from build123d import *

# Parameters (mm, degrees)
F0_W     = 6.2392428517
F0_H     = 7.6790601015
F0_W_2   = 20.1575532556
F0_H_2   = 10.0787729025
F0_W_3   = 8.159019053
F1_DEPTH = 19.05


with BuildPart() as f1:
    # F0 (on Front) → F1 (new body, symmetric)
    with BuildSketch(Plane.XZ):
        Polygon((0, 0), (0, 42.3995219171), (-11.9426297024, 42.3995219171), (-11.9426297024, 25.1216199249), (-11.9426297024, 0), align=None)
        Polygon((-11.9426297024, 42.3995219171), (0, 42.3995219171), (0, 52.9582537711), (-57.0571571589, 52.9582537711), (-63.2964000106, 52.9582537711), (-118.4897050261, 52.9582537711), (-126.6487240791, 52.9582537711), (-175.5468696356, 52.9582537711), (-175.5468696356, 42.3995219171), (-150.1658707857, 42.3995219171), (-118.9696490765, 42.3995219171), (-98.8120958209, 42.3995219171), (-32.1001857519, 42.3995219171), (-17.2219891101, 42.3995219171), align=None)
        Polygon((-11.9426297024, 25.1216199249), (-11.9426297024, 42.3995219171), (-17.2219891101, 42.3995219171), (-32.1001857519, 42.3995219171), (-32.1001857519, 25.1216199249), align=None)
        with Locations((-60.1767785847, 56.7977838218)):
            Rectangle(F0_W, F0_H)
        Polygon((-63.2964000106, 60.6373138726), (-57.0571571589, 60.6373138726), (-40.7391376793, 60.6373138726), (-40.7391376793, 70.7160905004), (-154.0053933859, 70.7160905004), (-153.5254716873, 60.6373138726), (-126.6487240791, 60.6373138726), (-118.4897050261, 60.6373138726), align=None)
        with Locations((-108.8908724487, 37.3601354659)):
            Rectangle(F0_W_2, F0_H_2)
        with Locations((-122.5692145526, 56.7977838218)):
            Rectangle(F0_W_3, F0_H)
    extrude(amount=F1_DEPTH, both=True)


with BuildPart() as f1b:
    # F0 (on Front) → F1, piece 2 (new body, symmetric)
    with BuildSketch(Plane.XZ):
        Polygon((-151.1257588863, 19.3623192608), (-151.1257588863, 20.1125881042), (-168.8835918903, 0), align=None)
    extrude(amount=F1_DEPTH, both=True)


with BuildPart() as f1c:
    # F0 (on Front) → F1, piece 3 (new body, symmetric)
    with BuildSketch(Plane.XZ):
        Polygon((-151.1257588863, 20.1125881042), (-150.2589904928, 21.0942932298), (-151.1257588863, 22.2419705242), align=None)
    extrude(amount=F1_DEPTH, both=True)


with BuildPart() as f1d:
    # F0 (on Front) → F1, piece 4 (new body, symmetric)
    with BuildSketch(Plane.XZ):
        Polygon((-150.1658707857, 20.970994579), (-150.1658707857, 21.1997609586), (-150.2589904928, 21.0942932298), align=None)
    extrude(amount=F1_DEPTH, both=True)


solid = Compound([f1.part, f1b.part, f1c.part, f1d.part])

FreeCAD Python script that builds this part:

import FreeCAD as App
import Part
import Sketcher

V = App.Vector
Q = App.Units.Quantity

doc = App.newDocument("Part")
body = doc.addObject("PartDesign::Body", "Body")

sketch1 = body.newObject("Sketcher::SketchObject", "Sketch")
sketch1.AttachmentSupport = (doc.getObject("XZ_Plane"), [""])
sketch1.MapMode = "FlatFace"
sketch1.addGeometry([
    Part.LineSegment(V(0, 0, 0), V(0, 53, 0)),
    Part.LineSegment(V(0, 53, 0), V(-57, 53, 0)),
    Part.LineSegment(V(-57, 53, 0), V(-57, 61, 0)),
    Part.LineSegment(V(-57, 61, 0), V(-41, 61, 0)),
    Part.LineSegment(V(-41, 61, 0), V(-41, 71, 0)),
    Part.LineSegment(V(-41, 71, 0), V(-154, 71, 0)),
    Part.LineSegment(V(-154, 71, 0), V(-154, 61, 0)),
    Part.LineSegment(V(-154, 61, 0), V(-127, 61, 0)),
    Part.LineSegment(V(-127, 61, 0), V(-127, 53, 0)),
    Part.LineSegment(V(-127, 53, 0), V(-176, 53, 0)),
    Part.LineSegment(V(-176, 53, 0), V(-176, 42, 0)),
    Part.LineSegment(V(-176, 42, 0), V(-119, 42, 0)),
    Part.LineSegment(V(-119, 42, 0), V(-119, 32, 0)),
    Part.LineSegment(V(-119, 32, 0), V(-99, 32, 0)),
    Part.LineSegment(V(-99, 32, 0), V(-99, 42, 0)),
    Part.LineSegment(V(-99, 42, 0), V(-32, 42, 0)),
    Part.LineSegment(V(-32, 42, 0), V(-32, 25, 0)),
    Part.LineSegment(V(-32, 25, 0), V(-12, 25, 0)),
    Part.LineSegment(V(-12, 25, 0), V(-12, 0, 0)),
    Part.LineSegment(V(-12, 0, 0), V(0, 0, 0)),
    Part.LineSegment(V(-118, 61, 0), V(-63, 61, 0)),
    Part.LineSegment(V(-63, 61, 0), V(-63, 53, 0)),
    Part.LineSegment(V(-63, 53, 0), V(-118, 53, 0)),
    Part.LineSegment(V(-118, 53, 0), V(-118, 61, 0)),
], False)
sketch1.addConstraint([
    Sketcher.Constraint("Coincident", 0, 2, 1, 1),
    Sketcher.Constraint("Coincident", 1, 2, 2, 1),
    Sketcher.Constraint("Coincident", 2, 2, 3, 1),
    Sketcher.Constraint("Coincident", 3, 2, 4, 1),
    Sketcher.Constraint("Coincident", 4, 2, 5, 1),
    Sketcher.Constraint("Coincident", 5, 2, 6, 1),
    Sketcher.Constraint("Coincident", 6, 2, 7, 1),
    Sketcher.Constraint("Coincident", 7, 2, 8, 1),
    Sketcher.Constraint("Coincident", 8, 2, 9, 1),
    Sketcher.Constraint("Coincident", 9, 2, 10, 1),
    Sketcher.Constraint("Coincident", 10, 2, 11, 1),
    Sketcher.Constraint("Coincident", 11, 2, 12, 1),
    Sketcher.Constraint("Coincident", 12, 2, 13, 1),
    Sketcher.Constraint("Coincident", 13, 2, 14, 1),
    Sketcher.Constraint("Coincident", 14, 2, 15, 1),
    Sketcher.Constraint("Coincident", 15, 2, 16, 1),
    Sketcher.Constraint("Coincident", 16, 2, 17, 1),
    Sketcher.Constraint("Coincident", 17, 2, 18, 1),
    Sketcher.Constraint("Coincident", 18, 2, 19, 1),
    Sketcher.Constraint("Coincident", 19, 2, 0, 1),
    Sketcher.Constraint("Coincident", 20, 2, 21, 1),
    Sketcher.Constraint("Coincident", 21, 2, 22, 1),
    Sketcher.Constraint("Coincident", 22, 2, 23, 1),
    Sketcher.Constraint("Coincident", 23, 2, 20, 1),
    Sketcher.Constraint("Vertical", 0),
    Sketcher.Constraint("Horizontal", 1),
    Sketcher.Constraint("Vertical", 2),
    Sketcher.Constraint("Horizontal", 3),
    Sketcher.Constraint("Vertical", 4),
    Sketcher.Constraint("Horizontal", 5),
    Sketcher.Constraint("Horizontal", 7),
    Sketcher.Constraint("Vertical", 8),
    Sketcher.Constraint("Horizontal", 9),
    Sketcher.Constraint("Vertical", 10),
    Sketcher.Constraint("Horizontal", 11),
    Sketcher.Constraint("Vertical", 12),
    Sketcher.Constraint("Horizontal", 13),
    Sketcher.Constraint("Vertical", 14),
    Sketcher.Constraint("Horizontal", 15),
    Sketcher.Constraint("Vertical", 16),
    Sketcher.Constraint("Horizontal", 17),
    Sketcher.Constraint("Vertical", 18),
    Sketcher.Constraint("Horizontal", 19),
    Sketcher.Constraint("Horizontal", 20),
    Sketcher.Constraint("Vertical", 21),
    Sketcher.Constraint("Horizontal", 22),
    Sketcher.Constraint("Vertical", 23),
    Sketcher.Constraint("Coincident", 19, 2, -1, 1),
    Sketcher.Constraint("Horizontal", 3, 2, 6, 2),
    Sketcher.Constraint("Horizontal", 1, 2, 8, 2),
    Sketcher.Constraint("Horizontal", 11, 2, 14, 2),
    Sketcher.Constraint("Horizontal", 7, 2, 20, 2),
    Sketcher.Constraint("Horizontal", 9, 2, 21, 2),
    Sketcher.Constraint("DistanceY", 16, 2, 16, 1, Q("17.277902 mm")),
    Sketcher.Constraint("DistanceY", 12, 2, 8, 2, Q("0.8125002 in")),
    Sketcher.Constraint("DistanceX", 3, 1, 3, 2, Q("16.318019 mm")),
    Sketcher.Constraint("DistanceX", 11, 1, 11, 2, Q("56.577221 mm")),
    Sketcher.Constraint("DistanceX", 15, 1, 15, 2, Q("66.71191 mm")),
    Sketcher.Constraint("DistanceX", 19, 1, 19, 2, Q("11.94263 mm")),
    Sketcher.Constraint("DistanceY", 2, 1, 2, 2, Q("7.67906 mm")),
    Sketcher.Constraint("DistanceY", 10, 2, 10, 1, Q("10.558732 mm")),
    Sketcher.Constraint("DistanceY", 18, 2, 18, 1, Q("25.12162 mm")),
    Sketcher.Constraint("DistanceX", 20, 2, -1, 1, Q("63.2964 mm")),
    Sketcher.Constraint("DistanceX", 1, 2, 1, 1, Q("57.057157 mm")),
    Sketcher.Constraint("DistanceX", 5, 2, 5, 1, Q("113.266256 mm")),
    Sketcher.Constraint("DistanceX", 7, 1, 7, 2, Q("26.876748 mm")),
    Sketcher.Constraint("DistanceX", 9, 2, 9, 1, Q("48.898146 mm")),
    Sketcher.Constraint("DistanceX", 13, 1, 13, 2, Q("20.157553 mm")),
    Sketcher.Constraint("DistanceX", 17, 1, 17, 2, Q("20.157556 mm")),
    Sketcher.Constraint("DistanceX", 20, 1, 20, 2, Q("55.193305 mm")),
    Sketcher.Constraint("DistanceY", 4, 1, 4, 2, Q("10.078777 mm")),
])
pad1 = body.newObject("PartDesign::Pad", "Pad")
pad1.Profile = sketch1
pad1.Length = Q("1.5 in")
pad1.Midplane = True
body2 = doc.addObject("PartDesign::Body", "Body001")

sketch2 = body2.newObject("Sketcher::SketchObject", "Sketch001")
sketch2.AttachmentSupport = (doc.getObject("XZ_Plane001"), [""])
sketch2.MapMode = "FlatFace"
sketch2.addGeometry([
    Part.LineSegment(V(-151.1, 19.4, 0), V(-151.1, 20.1, 0)),
    Part.LineSegment(V(-151.1, 20.1, 0), V(-168.9, 0, 0)),
    Part.LineSegment(V(-168.9, 0, 0), V(-151.1, 19.4, 0)),
], False)
sketch2.addConstraint([
    Sketcher.Constraint("Coincident", 0, 2, 1, 1),
    Sketcher.Constraint("Coincident", 1, 2, 2, 1),
    Sketcher.Constraint("Coincident", 2, 2, 0, 1),
    Sketcher.Constraint("Vertical", 0),
    Sketcher.Constraint("PointOnObject", 1, 2, -1),
    Sketcher.Constraint("DistanceY", 0, 1, 0, 2, Q("0.750269 mm")),
    Sketcher.Constraint("Distance", 2, Q("26.27242 mm")),
    Sketcher.Constraint("DistanceX", 0, 2, -1, 1, Q("151.125759 mm")),
    Sketcher.Constraint("DistanceY", -1, 1, 0, 2, Q("20.112588 mm")),
])
pad2 = body2.newObject("PartDesign::Pad", "Pad001")
pad2.Profile = sketch2
pad2.Length = Q("1.5 in")
pad2.Midplane = True
body3 = doc.addObject("PartDesign::Body", "Body002")

sketch3 = body3.newObject("Sketcher::SketchObject", "Sketch002")
sketch3.AttachmentSupport = (doc.getObject("XZ_Plane002"), [""])
sketch3.MapMode = "FlatFace"
sketch3.addGeometry([
    Part.LineSegment(V(-151.1, 20.1, 0), V(-150.3, 21.1, 0)),
    Part.LineSegment(V(-150.3, 21.1, 0), V(-151.1, 22.2, 0)),
    Part.LineSegment(V(-151.1, 22.2, 0), V(-151.1, 20.1, 0)),
], False)
sketch3.addConstraint([
    Sketcher.Constraint("Coincident", 0, 2, 1, 1),
    Sketcher.Constraint("Coincident", 1, 2, 2, 1),
    Sketcher.Constraint("Coincident", 2, 2, 0, 1),
    Sketcher.Constraint("Vertical", 2),
    Sketcher.Constraint("Distance", 1, Q("1.438211 mm")),
    Sketcher.Constraint("DistanceY", 2, 2, 2, 1, Q("2.129382 mm")),
    Sketcher.Constraint("DistanceX", 0, 2, -1, 1, Q("150.25899 mm")),
    Sketcher.Constraint("DistanceX", 1, 2, -1, 1, Q("151.125759 mm")),
    Sketcher.Constraint("DistanceY", -1, 1, 1, 2, Q("22.241971 mm")),
])
pad3 = body3.newObject("PartDesign::Pad", "Pad002")
pad3.Profile = sketch3
pad3.Length = Q("1.5 in")
pad3.Midplane = True
body4 = doc.addObject("PartDesign::Body", "Body003")

sketch4 = body4.newObject("Sketcher::SketchObject", "Sketch003")
sketch4.AttachmentSupport = (doc.getObject("XZ_Plane003"), [""])
sketch4.MapMode = "FlatFace"
sketch4.addGeometry([
    Part.LineSegment(V(-150.17, 20.97, 0), V(-150.17, 21.2, 0)),
    Part.LineSegment(V(-150.17, 21.2, 0), V(-150.26, 21.09, 0)),
    Part.LineSegment(V(-150.26, 21.09, 0), V(-150.17, 20.97, 0)),
], False)
sketch4.addConstraint([
    Sketcher.Constraint("Coincident", 0, 2, 1, 1),
    Sketcher.Constraint("Coincident", 1, 2, 2, 1),
    Sketcher.Constraint("Coincident", 2, 2, 0, 1),
    Sketcher.Constraint("Vertical", 0),
    Sketcher.Constraint("DistanceY", 2, 2, 1, 2, Q("0.123299 mm")),
    Sketcher.Constraint("Distance", 2, Q("0.154512 mm")),
    Sketcher.Constraint("DistanceY", 0, 1, 0, 2, Q("0.228766 mm")),
    Sketcher.Constraint("DistanceX", 0, 2, -1, 1, Q("150.165871 mm")),
    Sketcher.Constraint("DistanceY", -1, 1, 0, 2, Q("21.199761 mm")),
])
pad4 = body4.newObject("PartDesign::Pad", "Pad003")
pad4.Profile = sketch4
pad4.Length = Q("1.5 in")
pad4.Midplane = True

doc.recompute()
